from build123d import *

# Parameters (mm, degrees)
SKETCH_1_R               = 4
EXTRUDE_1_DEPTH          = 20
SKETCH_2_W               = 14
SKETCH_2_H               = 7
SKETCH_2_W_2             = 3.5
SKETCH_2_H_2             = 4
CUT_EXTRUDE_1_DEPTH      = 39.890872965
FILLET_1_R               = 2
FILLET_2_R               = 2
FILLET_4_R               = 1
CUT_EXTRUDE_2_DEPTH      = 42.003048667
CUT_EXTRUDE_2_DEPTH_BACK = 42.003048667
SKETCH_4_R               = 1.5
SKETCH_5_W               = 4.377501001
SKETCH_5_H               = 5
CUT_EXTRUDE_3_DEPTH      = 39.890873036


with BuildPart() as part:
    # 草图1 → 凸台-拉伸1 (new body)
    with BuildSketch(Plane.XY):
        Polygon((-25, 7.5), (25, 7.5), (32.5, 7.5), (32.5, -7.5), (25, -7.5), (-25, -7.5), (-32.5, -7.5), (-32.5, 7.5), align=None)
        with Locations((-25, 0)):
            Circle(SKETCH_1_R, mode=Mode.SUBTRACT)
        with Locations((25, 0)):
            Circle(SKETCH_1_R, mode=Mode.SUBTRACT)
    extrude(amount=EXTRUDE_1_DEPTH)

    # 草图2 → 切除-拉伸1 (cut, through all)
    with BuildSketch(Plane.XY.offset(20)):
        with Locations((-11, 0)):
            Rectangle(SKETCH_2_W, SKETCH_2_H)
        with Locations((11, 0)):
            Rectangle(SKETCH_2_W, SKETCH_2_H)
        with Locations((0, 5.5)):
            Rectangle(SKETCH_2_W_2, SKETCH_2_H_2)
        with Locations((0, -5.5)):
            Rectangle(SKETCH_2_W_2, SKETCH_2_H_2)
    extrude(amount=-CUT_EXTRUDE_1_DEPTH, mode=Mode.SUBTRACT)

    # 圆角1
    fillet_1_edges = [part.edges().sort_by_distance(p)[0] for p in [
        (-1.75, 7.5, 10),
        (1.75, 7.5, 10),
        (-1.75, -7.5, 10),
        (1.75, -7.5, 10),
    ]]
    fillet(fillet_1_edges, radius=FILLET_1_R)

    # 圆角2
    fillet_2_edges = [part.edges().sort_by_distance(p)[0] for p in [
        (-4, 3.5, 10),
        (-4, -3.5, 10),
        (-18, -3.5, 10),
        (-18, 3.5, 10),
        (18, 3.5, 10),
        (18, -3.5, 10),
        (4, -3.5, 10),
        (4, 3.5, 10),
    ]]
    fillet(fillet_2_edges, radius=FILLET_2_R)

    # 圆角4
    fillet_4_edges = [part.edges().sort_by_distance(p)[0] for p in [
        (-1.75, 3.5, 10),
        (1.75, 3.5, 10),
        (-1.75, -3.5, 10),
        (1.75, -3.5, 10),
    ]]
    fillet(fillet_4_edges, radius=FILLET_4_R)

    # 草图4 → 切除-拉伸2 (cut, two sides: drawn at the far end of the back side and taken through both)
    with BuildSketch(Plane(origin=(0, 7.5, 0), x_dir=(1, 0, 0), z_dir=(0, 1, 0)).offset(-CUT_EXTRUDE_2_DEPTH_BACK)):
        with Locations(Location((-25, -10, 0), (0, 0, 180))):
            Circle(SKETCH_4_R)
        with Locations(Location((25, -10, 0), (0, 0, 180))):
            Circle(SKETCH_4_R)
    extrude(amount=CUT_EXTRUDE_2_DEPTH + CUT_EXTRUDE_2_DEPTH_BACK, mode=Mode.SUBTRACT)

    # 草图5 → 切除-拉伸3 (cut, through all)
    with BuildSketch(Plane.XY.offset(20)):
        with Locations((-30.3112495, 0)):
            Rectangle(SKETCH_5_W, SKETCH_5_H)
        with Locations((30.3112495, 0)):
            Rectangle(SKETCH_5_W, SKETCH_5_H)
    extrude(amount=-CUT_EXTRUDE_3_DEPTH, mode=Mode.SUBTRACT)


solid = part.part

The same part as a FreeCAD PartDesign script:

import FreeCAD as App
import Part
import Sketcher
Q = App.Units.Quantity


def edges_at(feature, points):
    """Names of the edges that pass closest to the given points."""
    edges = feature.Shape.Edges
    near = lambda p: min(range(len(edges)), key=lambda i: edges[i].distToShape(Part.Vertex(*p))[0])
    return sorted({f"Edge{near(p) + 1}" for p in points})


def add_polygon(sketch, points):
    """Adds a closed chain of lines whose ends are joined by coincident constraints."""
    first, n = sketch.GeometryCount, len(points)
    for a, b in zip(points, points[1:] + points[:1]):
        sketch.addGeometry(Part.LineSegment(App.Vector(*a, 0), App.Vector(*b, 0)), False)
    for i in range(n):
        sketch.addConstraint(Sketcher.Constraint("Coincident", first + i, 2, first + (i + 1) % n, 1))

doc = App.newDocument("Part")
body = doc.addObject("PartDesign::Body", "Body")

sketch1 = body.newObject("Sketcher::SketchObject", "Sketch")
sketch1.AttachmentSupport = (doc.getObject("XY_Plane"), [""])
sketch1.MapMode = "FlatFace"
add_polygon(sketch1, [(32.5, 7.5), (-32.5, 7.5), (-32.5, -7.5), (32.5, -7.5)])
sketch1.addGeometry(Part.Circle(App.Vector(25, 0, 0), App.Vector(0, 0, 1), 4), False)
sketch1.addGeometry(Part.Circle(App.Vector(-25, 0, 0), App.Vector(0, 0, 1), 4), False)
sketch1.addConstraint(Sketcher.Constraint("Horizontal", 0))
sketch1.addConstraint(Sketcher.Constraint("Vertical", 1))
sketch1.addConstraint(Sketcher.Constraint("Horizontal", 2))
sketch1.addConstraint(Sketcher.Constraint("Vertical", 3))
sketch1.addConstraint(Sketcher.Constraint("Equal", 4, 5))
sketch1.addConstraint(Sketcher.Constraint("Symmetric", 4, 3, 5, 3, -1, 1))
sketch1.addConstraint(Sketcher.Constraint("Symmetric", 0, 2, 2, 2, -1, 1))
sketch1.addConstraint(Sketcher.Constraint("PointOnObject", 4, 3, -1))
sketch1.addConstraint(Sketcher.Constraint("Diameter", 4, Q("8 mm")))
sketch1.addConstraint(Sketcher.Constraint("DistanceX", 0, 2, 0, 1, Q("65 mm")))
sketch1.addConstraint(Sketcher.Constraint("DistanceY", 1, 2, 1, 1, Q("15 mm")))
sketch1.addConstraint(Sketcher.Constraint("DistanceX", -1, 1, 4, 3, Q("25 mm")))
pad1 = body.newObject("PartDesign::Pad", "Pad")
pad1.Profile = sketch1
pad1.Length = 20

sketch2 = body.newObject("Sketcher::SketchObject", "Sketch001")
sketch2.AttachmentSupport = (doc.getObject("XY_Plane"), [""])
sketch2.MapMode = "FlatFace"
sketch2.AttachmentOffset = App.Placement(App.Vector(0, 0, 20), App.Rotation())
add_polygon(sketch2, [(-18, 3.5), (-18, -3.5), (-4, -3.5), (-4, 3.5)])
add_polygon(sketch2, [(4, 3.5), (4, -3.5), (18, -3.5), (18, 3.5)])
add_polygon(sketch2, [(-1.8, 7.5), (-1.8, 3.5), (1.8, 3.5), (1.8, 7.5)])
add_polygon(sketch2, [(-1.8, -3.5), (-1.8, -7.5), (1.8, -7.5), (1.8, -3.5)])
sketch2.addConstraint(Sketcher.Constraint("Vertical", 0))
sketch2.addConstraint(Sketcher.Constraint("Horizontal", 1))
sketch2.addConstraint(Sketcher.Constraint("Vertical", 2))
sketch2.addConstraint(Sketcher.Constraint("Horizontal", 3))
sketch2.addConstraint(Sketcher.Constraint("Vertical", 4))
sketch2.addConstraint(Sketcher.Constraint("Horizontal", 5))
sketch2.addConstraint(Sketcher.Constraint("Vertical", 6))
sketch2.addConstraint(Sketcher.Constraint("Horizontal", 7))
sketch2.addConstraint(Sketcher.Constraint("Vertical", 8))
sketch2.addConstraint(Sketcher.Constraint("Horizontal", 9))
sketch2.addConstraint(Sketcher.Constraint("Vertical", 10))
sketch2.addConstraint(Sketcher.Constraint("Horizontal", 11))
sketch2.addConstraint(Sketcher.Constraint("Vertical", 12))
sketch2.addConstraint(Sketcher.Constraint("Horizontal", 13))
sketch2.addConstraint(Sketcher.Constraint("Vertical", 14))
sketch2.addConstraint(Sketcher.Constraint("Horizontal", 15))
sketch2.addConstraint(Sketcher.Constraint("Symmetric", 2, 2, 4, 2, -1, 1))
sketch2.addConstraint(Sketcher.Constraint("Symmetric", 0, 2, 6, 2, -1, 1))
sketch2.addConstraint(Sketcher.Constraint("Symmetric", 10, 2, 12, 2, -1, 1))
sketch2.addConstraint(Sketcher.Constraint("Symmetric", 8, 2, 14, 2, -1, 1))
sketch2.addConstraint(Sketcher.Constraint("Horizontal", 1, 2, 4, 2))
sketch2.addConstraint(Sketcher.Constraint("Horizontal", 7, 2, 8, 2))
sketch2.addConstraint(Sketcher.Constraint("Vertical", 11, 2, 12, 2))
sketch2.addConstraint(Sketcher.Constraint("DistanceX", 1, 1, 1, 2, Q("14 mm")))
sketch2.addConstraint(Sketcher.Constraint("DistanceY", 0, 2, 0, 1, Q("7 mm")))
sketch2.addConstraint(Sketcher.Constraint("DistanceY", 8, 2, 8, 1, Q("4 mm")))
sketch2.addConstraint(Sketcher.Constraint("DistanceX", 9, 1, 9, 2, Q("3.5 mm")))
sketch2.addConstraint(Sketcher.Constraint("DistanceX", 0, 2, -1, 1, Q("18 mm")))
pocket1 = body.newObject("PartDesign::Pocket", "Pocket")
pocket1.Profile = sketch2
pocket1.Type = "ThroughAll"
doc.recompute()

fillet = body.newObject("PartDesign::Fillet", "Fillet")
fillet.Base = (pocket1, edges_at(pocket1, [
    (-1.75, 7.5, 10),
    (1.75, 7.5, 10),
    (-1.75, -7.5, 10),
    (1.75, -7.5, 10),
]))
fillet.Radius = 2
doc.recompute()

fillet2 = body.newObject("PartDesign::Fillet", "Fillet001")
fillet2.Base = (fillet, edges_at(fillet, [
    (-4, 3.5, 10),
    (-4, -3.5, 10),
    (-18, -3.5, 10),
    (-18, 3.5, 10),
    (18, 3.5, 10),
    (18, -3.5, 10),
    (4, -3.5, 10),
    (4, 3.5, 10),
]))
fillet2.Radius = 2
doc.recompute()

fillet3 = body.newObject("PartDesign::Fillet", "Fillet002")
fillet3.Base = (fillet2, edges_at(fillet2, [
    (-1.75, 3.5, 10),
    (1.75, 3.5, 10),
    (-1.75, -3.5, 10),
    (1.75, -3.5, 10),
]))
fillet3.Radius = 1

sketch3 = body.newObject("Sketcher::SketchObject", "Sketch002")
sketch3.AttachmentSupport = (doc.getObject("XZ_Plane"), [""])
sketch3.MapMode = "FlatFace"
sketch3.AttachmentOffset = App.Placement(App.Vector(0, 0, -7.5), App.Rotation())
sketch3.addGeometry(Part.Circle(App.Vector(-25, 10, 0), App.Vector(0, 0, 1), 1.5), False)
sketch3.addGeometry(Part.Circle(App.Vector(25, 10, 0), App.Vector(0, 0, 1), 1.5), False)
sketch3.addConstraint(Sketcher.Constraint("Equal", 0, 1))
sketch3.addConstraint(Sketcher.Constraint("Symmetric", 0, 3, 1, 3, -2))
sketch3.addConstraint(Sketcher.Constraint("Diameter", 0, Q("3 mm")))
sketch3.addConstraint(Sketcher.Constraint("DistanceX", 0, 3, -1, 1, Q("25 mm")))
sketch3.addConstraint(Sketcher.Constraint("DistanceY", -1, 1, 0, 3, Q("10 mm")))
pocket2 = body.newObject("PartDesign::Pocket", "Pocket001")
pocket2.Profile = sketch3
pocket2.Type = "ThroughAll"
pocket2.Midplane = True

sketch4 = body.newObject("Sketcher::SketchObject", "Sketch003")
sketch4.AttachmentSupport = (doc.getObject("XY_Plane"), [""])
sketch4.MapMode = "FlatFace"
sketch4.AttachmentOffset = App.Placement(App.Vector(0, 0, 20), App.Rotation())
add_polygon(sketch4, [(-32.5, 2.5), (-32.5, -2.5), (-28.1, -2.5), (-28.1, 2.5)])
add_polygon(sketch4, [(28.1, 2.5), (28.1, -2.5), (32.5, -2.5), (32.5, 2.5)])
sketch4.addConstraint(Sketcher.Constraint("Vertical", 0))
sketch4.addConstraint(Sketcher.Constraint("Horizontal", 1))
sketch4.addConstraint(Sketcher.Constraint("Vertical", 2))
sketch4.addConstraint(Sketcher.Constraint("Horizontal", 3))
sketch4.addConstraint(Sketcher.Constraint("Vertical", 4))
sketch4.addConstraint(Sketcher.Constraint("Horizontal", 5))
sketch4.addConstraint(Sketcher.Constraint("Vertical", 6))
sketch4.addConstraint(Sketcher.Constraint("Horizontal", 7))
sketch4.addConstraint(Sketcher.Constraint("Symmetric", 2, 2, 4, 2, -1, 1))
sketch4.addConstraint(Sketcher.Constraint("Symmetric", 0, 2, 6, 2, -1, 1))
sketch4.addConstraint(Sketcher.Constraint("Horizontal", 1, 2, 4, 2))
sketch4.addConstraint(Sketcher.Constraint("DistanceY", 0, 2, 0, 1, Q("5 mm")))
sketch4.addConstraint(Sketcher.Constraint("DistanceX", 0, 2, 5, 2, Q("65 mm")))
sketch4.addConstraint(Sketcher.Constraint("DistanceX", 1, 1, 1, 2, Q("4.377501 mm")))
pocket3 = body.newObject("PartDesign::Pocket", "Pocket002")
pocket3.Profile = sketch4
pocket3.Type = "ThroughAll"

doc.recompute()
